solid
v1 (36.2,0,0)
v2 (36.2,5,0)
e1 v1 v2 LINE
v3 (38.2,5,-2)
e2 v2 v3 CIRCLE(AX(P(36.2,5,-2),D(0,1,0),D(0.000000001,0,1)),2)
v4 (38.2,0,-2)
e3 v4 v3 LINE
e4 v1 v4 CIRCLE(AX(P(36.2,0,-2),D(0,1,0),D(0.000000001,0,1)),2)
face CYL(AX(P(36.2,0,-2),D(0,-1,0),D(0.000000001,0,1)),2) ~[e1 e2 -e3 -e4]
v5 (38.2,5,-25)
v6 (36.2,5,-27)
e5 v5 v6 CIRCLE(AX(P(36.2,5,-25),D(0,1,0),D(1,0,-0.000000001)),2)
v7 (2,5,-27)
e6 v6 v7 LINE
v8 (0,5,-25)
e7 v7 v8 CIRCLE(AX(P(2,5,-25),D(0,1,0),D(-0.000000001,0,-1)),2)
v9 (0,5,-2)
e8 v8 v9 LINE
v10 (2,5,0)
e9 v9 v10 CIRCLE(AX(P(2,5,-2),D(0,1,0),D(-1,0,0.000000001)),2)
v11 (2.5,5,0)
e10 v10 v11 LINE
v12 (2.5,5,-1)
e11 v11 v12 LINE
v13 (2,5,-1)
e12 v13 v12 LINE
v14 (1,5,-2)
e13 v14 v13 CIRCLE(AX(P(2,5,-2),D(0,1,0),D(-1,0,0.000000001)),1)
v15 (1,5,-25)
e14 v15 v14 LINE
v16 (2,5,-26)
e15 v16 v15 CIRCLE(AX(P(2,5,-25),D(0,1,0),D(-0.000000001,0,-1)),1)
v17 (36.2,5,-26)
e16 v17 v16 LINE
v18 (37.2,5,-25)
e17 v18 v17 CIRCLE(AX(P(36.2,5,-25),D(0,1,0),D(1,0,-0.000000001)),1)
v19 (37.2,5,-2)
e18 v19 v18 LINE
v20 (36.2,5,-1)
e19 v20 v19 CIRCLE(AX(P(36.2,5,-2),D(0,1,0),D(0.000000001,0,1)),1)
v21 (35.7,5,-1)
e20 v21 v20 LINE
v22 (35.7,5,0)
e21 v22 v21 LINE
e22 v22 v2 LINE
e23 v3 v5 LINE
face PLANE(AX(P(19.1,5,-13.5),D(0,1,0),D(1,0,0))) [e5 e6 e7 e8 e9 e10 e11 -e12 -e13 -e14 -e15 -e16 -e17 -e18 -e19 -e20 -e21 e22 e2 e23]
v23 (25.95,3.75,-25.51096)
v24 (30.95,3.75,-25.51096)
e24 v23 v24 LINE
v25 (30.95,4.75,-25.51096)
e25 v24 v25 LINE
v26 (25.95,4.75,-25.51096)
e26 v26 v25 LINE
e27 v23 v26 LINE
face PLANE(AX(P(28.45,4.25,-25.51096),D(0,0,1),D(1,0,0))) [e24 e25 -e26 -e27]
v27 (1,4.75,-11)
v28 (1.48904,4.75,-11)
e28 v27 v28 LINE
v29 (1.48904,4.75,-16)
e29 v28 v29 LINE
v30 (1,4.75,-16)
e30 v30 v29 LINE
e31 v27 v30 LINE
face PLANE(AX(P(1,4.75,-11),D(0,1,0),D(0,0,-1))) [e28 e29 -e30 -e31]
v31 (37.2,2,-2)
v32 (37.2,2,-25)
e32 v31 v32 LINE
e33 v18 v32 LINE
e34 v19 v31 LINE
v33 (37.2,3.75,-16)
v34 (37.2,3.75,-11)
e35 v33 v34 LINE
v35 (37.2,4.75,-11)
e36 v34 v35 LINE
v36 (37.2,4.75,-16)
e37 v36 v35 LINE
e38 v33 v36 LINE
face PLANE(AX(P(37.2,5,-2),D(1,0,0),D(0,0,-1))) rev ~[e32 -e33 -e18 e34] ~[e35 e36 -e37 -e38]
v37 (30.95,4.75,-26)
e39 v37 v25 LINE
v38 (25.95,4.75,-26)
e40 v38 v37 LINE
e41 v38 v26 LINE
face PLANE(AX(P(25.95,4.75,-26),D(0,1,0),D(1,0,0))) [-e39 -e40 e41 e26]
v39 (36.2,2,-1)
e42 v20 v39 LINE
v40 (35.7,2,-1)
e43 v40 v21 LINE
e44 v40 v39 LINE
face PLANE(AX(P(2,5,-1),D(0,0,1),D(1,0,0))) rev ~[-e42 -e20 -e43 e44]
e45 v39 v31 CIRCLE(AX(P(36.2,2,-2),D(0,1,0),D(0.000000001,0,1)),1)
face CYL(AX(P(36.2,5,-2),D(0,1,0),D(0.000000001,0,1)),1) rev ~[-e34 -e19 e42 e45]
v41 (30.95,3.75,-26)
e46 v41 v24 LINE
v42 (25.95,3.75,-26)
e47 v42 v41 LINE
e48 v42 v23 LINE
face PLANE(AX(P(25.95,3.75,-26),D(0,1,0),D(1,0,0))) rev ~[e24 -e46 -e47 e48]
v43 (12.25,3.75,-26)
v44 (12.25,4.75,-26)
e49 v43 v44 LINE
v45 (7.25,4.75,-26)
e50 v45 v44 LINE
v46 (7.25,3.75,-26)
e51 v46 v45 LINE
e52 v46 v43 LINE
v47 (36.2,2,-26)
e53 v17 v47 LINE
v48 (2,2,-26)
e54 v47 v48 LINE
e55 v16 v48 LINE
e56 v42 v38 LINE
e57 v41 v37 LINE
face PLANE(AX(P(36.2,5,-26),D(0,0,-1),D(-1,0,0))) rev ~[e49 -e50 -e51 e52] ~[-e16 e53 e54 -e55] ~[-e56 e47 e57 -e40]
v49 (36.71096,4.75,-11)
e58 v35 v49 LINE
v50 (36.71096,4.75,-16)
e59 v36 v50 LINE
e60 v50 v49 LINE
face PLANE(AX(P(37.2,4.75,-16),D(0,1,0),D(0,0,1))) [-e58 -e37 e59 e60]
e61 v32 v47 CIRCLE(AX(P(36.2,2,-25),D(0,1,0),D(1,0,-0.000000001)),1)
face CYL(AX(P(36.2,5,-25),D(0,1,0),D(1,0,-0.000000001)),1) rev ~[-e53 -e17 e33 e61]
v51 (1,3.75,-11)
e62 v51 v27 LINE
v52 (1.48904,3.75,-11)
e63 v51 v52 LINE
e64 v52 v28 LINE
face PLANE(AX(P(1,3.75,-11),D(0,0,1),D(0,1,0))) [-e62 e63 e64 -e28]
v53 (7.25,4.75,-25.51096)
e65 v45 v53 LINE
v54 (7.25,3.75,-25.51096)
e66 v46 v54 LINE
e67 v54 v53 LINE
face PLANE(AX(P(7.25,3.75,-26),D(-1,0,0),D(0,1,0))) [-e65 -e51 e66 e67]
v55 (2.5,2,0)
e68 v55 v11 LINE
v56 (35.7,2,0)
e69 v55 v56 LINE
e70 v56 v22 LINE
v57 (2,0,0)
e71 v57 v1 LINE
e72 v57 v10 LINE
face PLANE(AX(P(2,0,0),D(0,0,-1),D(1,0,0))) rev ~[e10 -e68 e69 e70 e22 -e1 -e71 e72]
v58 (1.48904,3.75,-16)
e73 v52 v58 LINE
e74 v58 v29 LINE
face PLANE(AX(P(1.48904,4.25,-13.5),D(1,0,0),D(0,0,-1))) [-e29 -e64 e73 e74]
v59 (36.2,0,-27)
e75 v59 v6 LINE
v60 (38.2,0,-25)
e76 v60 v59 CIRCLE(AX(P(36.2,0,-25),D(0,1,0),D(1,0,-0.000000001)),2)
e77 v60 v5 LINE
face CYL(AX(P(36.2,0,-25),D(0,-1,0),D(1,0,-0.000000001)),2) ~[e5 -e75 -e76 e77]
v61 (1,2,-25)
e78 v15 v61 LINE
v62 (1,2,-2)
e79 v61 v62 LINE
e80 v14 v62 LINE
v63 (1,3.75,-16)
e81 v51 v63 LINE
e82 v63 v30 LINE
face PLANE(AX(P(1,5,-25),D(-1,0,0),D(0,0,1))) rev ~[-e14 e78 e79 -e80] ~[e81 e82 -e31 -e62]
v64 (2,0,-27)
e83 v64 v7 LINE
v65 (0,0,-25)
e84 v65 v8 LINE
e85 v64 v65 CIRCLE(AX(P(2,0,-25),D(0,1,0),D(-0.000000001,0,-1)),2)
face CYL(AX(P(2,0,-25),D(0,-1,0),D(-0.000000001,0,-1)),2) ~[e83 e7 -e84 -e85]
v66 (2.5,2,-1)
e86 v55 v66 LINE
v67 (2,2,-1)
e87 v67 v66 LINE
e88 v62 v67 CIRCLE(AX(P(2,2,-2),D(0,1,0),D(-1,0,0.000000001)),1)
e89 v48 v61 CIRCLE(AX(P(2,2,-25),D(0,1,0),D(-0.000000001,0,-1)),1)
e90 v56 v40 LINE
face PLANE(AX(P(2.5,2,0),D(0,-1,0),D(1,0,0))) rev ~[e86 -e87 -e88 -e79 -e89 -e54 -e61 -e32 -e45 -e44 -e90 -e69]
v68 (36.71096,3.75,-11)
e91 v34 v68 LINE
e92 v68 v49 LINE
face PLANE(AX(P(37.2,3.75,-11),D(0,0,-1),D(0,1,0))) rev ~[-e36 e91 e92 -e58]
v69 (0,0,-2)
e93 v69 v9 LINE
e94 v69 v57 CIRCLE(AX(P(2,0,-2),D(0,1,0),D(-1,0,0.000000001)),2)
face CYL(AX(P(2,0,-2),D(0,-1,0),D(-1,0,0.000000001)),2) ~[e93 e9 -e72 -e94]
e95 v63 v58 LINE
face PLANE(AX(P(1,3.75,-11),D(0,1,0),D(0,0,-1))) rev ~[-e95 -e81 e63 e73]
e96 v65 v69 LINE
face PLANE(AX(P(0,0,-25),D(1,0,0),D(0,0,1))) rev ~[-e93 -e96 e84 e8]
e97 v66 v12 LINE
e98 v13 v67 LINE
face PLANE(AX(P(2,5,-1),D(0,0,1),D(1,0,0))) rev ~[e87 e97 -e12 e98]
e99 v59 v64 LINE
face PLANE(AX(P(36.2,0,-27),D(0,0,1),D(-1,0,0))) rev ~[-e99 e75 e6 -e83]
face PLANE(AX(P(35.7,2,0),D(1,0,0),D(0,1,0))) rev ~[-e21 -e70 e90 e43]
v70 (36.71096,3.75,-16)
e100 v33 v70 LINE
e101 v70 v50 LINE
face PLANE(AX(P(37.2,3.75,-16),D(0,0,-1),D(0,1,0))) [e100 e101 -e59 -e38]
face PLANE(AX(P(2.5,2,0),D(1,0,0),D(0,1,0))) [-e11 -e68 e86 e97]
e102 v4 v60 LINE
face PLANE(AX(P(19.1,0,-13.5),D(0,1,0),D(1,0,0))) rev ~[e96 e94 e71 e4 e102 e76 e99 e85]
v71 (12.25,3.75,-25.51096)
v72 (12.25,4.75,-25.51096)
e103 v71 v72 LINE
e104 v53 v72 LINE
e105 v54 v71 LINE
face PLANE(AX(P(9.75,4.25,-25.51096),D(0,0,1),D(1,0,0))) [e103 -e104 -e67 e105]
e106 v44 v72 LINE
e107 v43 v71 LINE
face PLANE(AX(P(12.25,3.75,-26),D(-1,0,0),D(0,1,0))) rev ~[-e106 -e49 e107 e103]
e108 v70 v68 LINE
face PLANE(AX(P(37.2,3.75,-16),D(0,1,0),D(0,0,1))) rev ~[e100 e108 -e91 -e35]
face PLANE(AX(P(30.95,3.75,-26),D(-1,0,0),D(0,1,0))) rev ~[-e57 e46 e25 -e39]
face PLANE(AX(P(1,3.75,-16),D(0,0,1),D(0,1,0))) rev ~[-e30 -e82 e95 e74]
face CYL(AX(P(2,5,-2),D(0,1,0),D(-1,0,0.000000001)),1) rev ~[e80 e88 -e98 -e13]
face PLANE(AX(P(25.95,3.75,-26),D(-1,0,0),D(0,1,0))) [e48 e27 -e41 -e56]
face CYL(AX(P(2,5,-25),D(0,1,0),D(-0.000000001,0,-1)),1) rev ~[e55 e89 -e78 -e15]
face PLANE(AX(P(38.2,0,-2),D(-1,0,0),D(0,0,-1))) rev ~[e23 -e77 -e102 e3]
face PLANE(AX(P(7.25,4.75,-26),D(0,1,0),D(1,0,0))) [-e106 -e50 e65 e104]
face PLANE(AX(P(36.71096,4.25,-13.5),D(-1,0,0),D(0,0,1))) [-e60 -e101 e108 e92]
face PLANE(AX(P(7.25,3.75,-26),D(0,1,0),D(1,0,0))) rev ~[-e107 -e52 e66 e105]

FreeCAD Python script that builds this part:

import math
import FreeCAD as App
import Part
import Sketcher

V = App.Vector

doc = App.newDocument("Part")
params = doc.addObject("Spreadsheet::Sheet", "Params")
for row, (alias, value) in enumerate([
    ("sketch1_radius", "2 mm"),
    ("sketch1_height", "23 mm"),
    ("sketch1_width", "34.2 mm"),
    ("pad1_length", "5 mm"),
    ("sketch2_radius", "1 mm"),
    ("sketch2_height", "23 mm"),
    ("sketch2_width", "34.2 mm"),
    ("pocket1_length", "3 mm"),
    ("sketch3_height", "3 mm"),
    ("sketch3_width", "33.2 mm"),
    ("pocket2_length", "3 mm"),
    ("sketch4_width", "1 mm"),
    ("sketch4_height", "5 mm"),
    ("pad2_length", "0.48904 mm"),
    ("sketch5_width", "1 mm"),
    ("sketch5_height", "5 mm"),
    ("pad3_length", "0.48904 mm"),
    ("sketch6_width", "5 mm"),
    ("sketch6_height", "1 mm"),
    ("pad4_length", "0.48904 mm"),
], start=1):
    params.set(f"A{row}", alias)
    params.set(f"B{row}", "=" + value)
    params.setAlias(f"B{row}", alias)

body = doc.addObject("PartDesign::Body", "Body")

# Sketch on XZ plane
sketch1 = body.newObject("Sketcher::SketchObject", "Sketch")
sketch1.AttachmentSupport = (doc.getObject("XZ_Plane"), [""])
sketch1.MapMode = "FlatFace"
sketch1.addGeometry([
    Part.LineSegment(V(2, 0, 0), V(36.2, 0, 0)),  # 0
    Part.ArcOfCircle(Part.Circle(V(36.2, -2, 0), V(0, 0, 1), 2), math.radians(0), math.radians(90)),  # 1
    Part.LineSegment(V(38.2, -2, 0), V(38.2, -25, 0)),  # 2
    Part.ArcOfCircle(Part.Circle(V(36.2, -25, 0), V(0, 0, 1), 2), math.radians(-90), math.radians(0)),  # 3
    Part.LineSegment(V(36.2, -27, 0), V(2, -27, 0)),  # 4
    Part.ArcOfCircle(Part.Circle(V(2, -25, 0), V(0, 0, 1), 2), math.radians(-180), math.radians(-90)),  # 5
    Part.LineSegment(V(0, -25, 0), V(0, -2, 0)),  # 6
    Part.ArcOfCircle(Part.Circle(V(2, -2, 0), V(0, 0, 1), 2), math.radians(90), math.radians(180)),  # 7
], False)
sketch1.addConstraint([
    Sketcher.Constraint("Tangent", 0, 2, 1, 2),
    Sketcher.Constraint("Tangent", 1, 1, 2, 1),
    Sketcher.Constraint("Tangent", 2, 2, 3, 2),
    Sketcher.Constraint("Tangent", 3, 1, 4, 1),
    Sketcher.Constraint("Tangent", 4, 2, 5, 2),
    Sketcher.Constraint("Tangent", 5, 1, 6, 1),
    Sketcher.Constraint("Tangent", 6, 2, 7, 2),
    Sketcher.Constraint("Tangent", 7, 1, 0, 1),
    Sketcher.Constraint("Horizontal", 0),
    Sketcher.Constraint("Vertical", 2),
    Sketcher.Constraint("Horizontal", 4),
    Sketcher.Constraint("Vertical", 6),
    Sketcher.Constraint("Equal", 1, 3),
    Sketcher.Constraint("Equal", 3, 5),
    Sketcher.Constraint("Equal", 5, 7),
    Sketcher.Constraint("PointOnObject", 0, 2, -1),
    Sketcher.Constraint("PointOnObject", 5, 1, -2),
    Sketcher.Constraint("Radius", 1, 2.0),
    Sketcher.Constraint("DistanceY", 2, 2, 2, 1, 23.0),
    Sketcher.Constraint("DistanceX", 0, 1, 0, 2, 34.2),
])
sketch1.setExpression("Constraints[17]", "Params.sketch1_radius")
sketch1.setExpression("Constraints[18]", "Params.sketch1_height")
sketch1.setExpression("Constraints[19]", "Params.sketch1_width")
pad1 = body.newObject("PartDesign::Pad", "Pad")
pad1.Profile = sketch1
pad1.setExpression("Length", "Params.pad1_length")
pad1.Reversed = True

# Sketch on XZ plane
sketch2 = body.newObject("Sketcher::SketchObject", "Sketch001")
sketch2.AttachmentSupport = (doc.getObject("XZ_Plane"), [""])
sketch2.MapMode = "FlatFace"
sketch2.AttachmentOffset = App.Placement(V(0, 0, -5), App.Rotation())
sketch2.addGeometry([
    Part.LineSegment(V(37.2, -2, 0), V(37.2, -25, 0)),  # 0
    Part.ArcOfCircle(Part.Circle(V(36.2, -25, 0), V(0, 0, 1), 1), math.radians(-90), math.radians(0)),  # 1
    Part.LineSegment(V(36.2, -26, 0), V(2, -26, 0)),  # 2
    Part.ArcOfCircle(Part.Circle(V(2, -25, 0), V(0, 0, 1), 1), math.radians(-180), math.radians(-90)),  # 3
    Part.LineSegment(V(1, -25, 0), V(1, -2, 0)),  # 4
    Part.ArcOfCircle(Part.Circle(V(2, -2, 0), V(0, 0, 1), 1), math.radians(90), math.radians(180)),  # 5
    Part.LineSegment(V(2, -1, 0), V(36.2, -1, 0)),  # 6
    Part.ArcOfCircle(Part.Circle(V(36.2, -2, 0), V(0, 0, 1), 1), math.radians(0), math.radians(90)),  # 7
], False)
sketch2.addConstraint([
    Sketcher.Constraint("Tangent", 0, 2, 1, 2),
    Sketcher.Constraint("Tangent", 1, 1, 2, 1),
    Sketcher.Constraint("Tangent", 2, 2, 3, 2),
    Sketcher.Constraint("Tangent", 3, 1, 4, 1),
    Sketcher.Constraint("Tangent", 4, 2, 5, 2),
    Sketcher.Constraint("Tangent", 5, 1, 6, 1),
    Sketcher.Constraint("Tangent", 6, 2, 7, 2),
    Sketcher.Constraint("Tangent", 7, 1, 0, 1),
    Sketcher.Constraint("Vertical", 0),
    Sketcher.Constraint("Horizontal", 2),
    Sketcher.Constraint("Vertical", 4),
    Sketcher.Constraint("Horizontal", 6),
    Sketcher.Constraint("Equal", 1, 3),
    Sketcher.Constraint("Equal", 3, 5),
    Sketcher.Constraint("Equal", 5, 7),
    Sketcher.Constraint("Radius", 1, 1.0),
    Sketcher.Constraint("DistanceY", 0, 2, 0, 1, 23.0),
    Sketcher.Constraint("DistanceX", 2, 2, 2, 1, 34.2),
    Sketcher.Constraint("DistanceY", 1, 3, -1, 1, 25.0),
    Sketcher.Constraint("DistanceX", -1, 1, 3, 3, 2.0),
])
sketch2.setExpression("Constraints[15]", "Params.sketch2_radius")
sketch2.setExpression("Constraints[16]", "Params.sketch2_height")
sketch2.setExpression("Constraints[17]", "Params.sketch2_width")
pocket1 = body.newObject("PartDesign::Pocket", "Pocket")
pocket1.Profile = sketch2
pocket1.setExpression("Length", "Params.pocket1_length")
pocket1.Reversed = True

# Sketch on XY plane
sketch3 = body.newObject("Sketcher::SketchObject", "Sketch002")
sketch3.AttachmentSupport = (doc.getObject("XY_Plane"), [""])
sketch3.MapMode = "FlatFace"
sketch3.addGeometry([
    Part.LineSegment(V(2.5, 5, 0), V(2.5, 2, 0)),
    Part.LineSegment(V(2.5, 2, 0), V(35.7, 2, 0)),
    Part.LineSegment(V(35.7, 2, 0), V(35.7, 5, 0)),
    Part.LineSegment(V(35.7, 5, 0), V(2.5, 5, 0)),
], False)
sketch3.addConstraint([
    Sketcher.Constraint("Coincident", 0, 2, 1, 1),
    Sketcher.Constraint("Coincident", 1, 2, 2, 1),
    Sketcher.Constraint("Coincident", 2, 2, 3, 1),
    Sketcher.Constraint("Coincident", 3, 2, 0, 1),
    Sketcher.Constraint("Vertical", 0),
    Sketcher.Constraint("Horizontal", 1),
    Sketcher.Constraint("Vertical", 2),
    Sketcher.Constraint("Horizontal", 3),
    Sketcher.Constraint("DistanceY", 0, 2, 0, 1, 3.0),
    Sketcher.Constraint("DistanceX", 1, 1, 1, 2, 33.2),
    Sketcher.Constraint("DistanceY", -1, 1, 0, 2, 2.0),
    Sketcher.Constraint("DistanceX", -1, 1, 0, 2, 2.5),
])
sketch3.setExpression("Constraints[8]", "Params.sketch3_height")
sketch3.setExpression("Constraints[9]", "Params.sketch3_width")
pocket2 = body.newObject("PartDesign::Pocket", "Pocket001")
pocket2.Profile = sketch3
pocket2.setExpression("Length", "Params.pocket2_length")

# Sketch on YZ plane
sketch4 = body.newObject("Sketcher::SketchObject", "Sketch003")
sketch4.AttachmentSupport = (doc.getObject("YZ_Plane"), [""])
sketch4.MapMode = "FlatFace"
sketch4.AttachmentOffset = App.Placement(V(0, 0, 1), App.Rotation())
sketch4.addGeometry([
    Part.LineSegment(V(4.8, -11, 0), V(3.8, -11, 0)),
    Part.LineSegment(V(3.8, -11, 0), V(3.8, -16, 0)),
    Part.LineSegment(V(3.8, -16, 0), V(4.8, -16, 0)),
    Part.LineSegment(V(4.8, -16, 0), V(4.8, -11, 0)),
], False)
sketch4.addConstraint([
    Sketcher.Constraint("Coincident", 0, 2, 1, 1),
    Sketcher.Constraint("Coincident", 1, 2, 2, 1),
    Sketcher.Constraint("Coincident", 2, 2, 3, 1),
    Sketcher.Constraint("Coincident", 3, 2, 0, 1),
    Sketcher.Constraint("Horizontal", 0),
    Sketcher.Constraint("Vertical", 1),
    Sketcher.Constraint("Horizontal", 2),
    Sketcher.Constraint("Vertical", 3),
    Sketcher.Constraint("DistanceX", 0, 2, 0, 1, 1.0),
    Sketcher.Constraint("DistanceY", 1, 2, 1, 1, 5.0),
    Sketcher.Constraint("DistanceY", 0, 2, -1, 1, 11.0),
    Sketcher.Constraint("DistanceX", -1, 1, 0, 2, 3.75),
])
sketch4.setExpression("Constraints[8]", "Params.sketch4_width")
sketch4.setExpression("Constraints[9]", "Params.sketch4_height")
pad2 = body.newObject("PartDesign::Pad", "Pad001")
pad2.Profile = sketch4
pad2.setExpression("Length", "Params.pad2_length")

# Sketch on YZ plane
sketch5 = body.newObject("Sketcher::SketchObject", "Sketch004")
sketch5.AttachmentSupport = (doc.getObject("YZ_Plane"), [""])
sketch5.MapMode = "FlatFace"
sketch5.AttachmentOffset = App.Placement(V(0, 0, 37.2), App.Rotation())
sketch5.addGeometry([
    Part.LineSegment(V(4.8, -16, 0), V(3.8, -16, 0)),
    Part.LineSegment(V(3.8, -16, 0), V(3.8, -11, 0)),
    Part.LineSegment(V(3.8, -11, 0), V(4.8, -11, 0)),
    Part.LineSegment(V(4.8, -11, 0), V(4.8, -16, 0)),
], False)
sketch5.addConstraint([
    Sketcher.Constraint("Coincident", 0, 2, 1, 1),
    Sketcher.Constraint("Coincident", 1, 2, 2, 1),
    Sketcher.Constraint("Coincident", 2, 2, 3, 1),
    Sketcher.Constraint("Coincident", 3, 2, 0, 1),
    Sketcher.Constraint("Horizontal", 0),
    Sketcher.Constraint("Vertical", 1),
    Sketcher.Constraint("Horizontal", 2),
    Sketcher.Constraint("Vertical", 3),
    Sketcher.Constraint("DistanceX", 0, 2, 0, 1, 1.0),
    Sketcher.Constraint("DistanceY", 1, 1, 1, 2, 5.0),
    Sketcher.Constraint("DistanceY", 0, 2, -1, 1, 16.0),
    Sketcher.Constraint("DistanceX", -1, 1, 0, 2, 3.75),
])
sketch5.setExpression("Constraints[8]", "Params.sketch5_width")
sketch5.setExpression("Constraints[9]", "Params.sketch5_height")
pad3 = body.newObject("PartDesign::Pad", "Pad002")
pad3.Profile = sketch5
pad3.setExpression("Length", "Params.pad3_length")
pad3.Reversed = True

# Sketch on XY plane
sketch6 = body.newObject("Sketcher::SketchObject", "Sketch005")
sketch6.AttachmentSupport = (doc.getObject("XY_Plane"), [""])
sketch6.MapMode = "FlatFace"
sketch6.AttachmentOffset = App.Placement(V(0, 0, -26), App.Rotation())
sketch6.addGeometry([
    Part.LineSegment(V(7.2, 4.8, 0), V(7.2, 3.8, 0)),  # 0
    Part.LineSegment(V(7.2, 3.8, 0), V(12.2, 3.8, 0)),  # 1
    Part.LineSegment(V(12.2, 3.8, 0), V(12.2, 4.8, 0)),  # 2
    Part.LineSegment(V(12.2, 4.8, 0), V(7.2, 4.8, 0)),  # 3
    Part.LineSegment(V(25.9, 4.8, 0), V(25.9, 3.8, 0)),  # 4
    Part.LineSegment(V(25.9, 3.8, 0), V(30.9, 3.8, 0)),  # 5
    Part.LineSegment(V(30.9, 3.8, 0), V(30.9, 4.8, 0)),  # 6
    Part.LineSegment(V(30.9, 4.8, 0), V(25.9, 4.8, 0)),  # 7
], False)
sketch6.addConstraint([
    Sketcher.Constraint("Coincident", 0, 2, 1, 1),
    Sketcher.Constraint("Coincident", 1, 2, 2, 1),
    Sketcher.Constraint("Coincident", 2, 2, 3, 1),
    Sketcher.Constraint("Coincident", 3, 2, 0, 1),
    Sketcher.Constraint("Coincident", 4, 2, 5, 1),
    Sketcher.Constraint("Coincident", 5, 2, 6, 1),
    Sketcher.Constraint("Coincident", 6, 2, 7, 1),
    Sketcher.Constraint("Coincident", 7, 2, 4, 1),
    Sketcher.Constraint("Vertical", 0),
    Sketcher.Constraint("Horizontal", 1),
    Sketcher.Constraint("Vertical", 2),
    Sketcher.Constraint("Horizontal", 3),
    Sketcher.Constraint("Vertical", 4),
    Sketcher.Constraint("Horizontal", 5),
    Sketcher.Constraint("Vertical", 6),
    Sketcher.Constraint("Horizontal", 7),
    Sketcher.Constraint("Horizontal", 1, 2, 4, 2),
    Sketcher.Constraint("Horizontal", 3, 2, 6, 2),
    Sketcher.Constraint("Equal", 3, 5),
    Sketcher.Constraint("DistanceX", 1, 1, 1, 2, 5.0),
    Sketcher.Constraint("DistanceY", 0, 2, 0, 1, 1.0),
    Sketcher.Constraint("DistanceX", 1, 2, 4, 2, 13.7),
    Sketcher.Constraint("DistanceX", -1, 1, 0, 2, 7.25),
    Sketcher.Constraint("DistanceY", -1, 1, 0, 2, 3.75),
])
sketch6.setExpression("Constraints[19]", "Params.sketch6_width")
sketch6.setExpression("Constraints[20]", "Params.sketch6_height")
pad4 = body.newObject("PartDesign::Pad", "Pad003")
pad4.Profile = sketch6
pad4.setExpression("Length", "Params.pad4_length")

doc.recompute()
